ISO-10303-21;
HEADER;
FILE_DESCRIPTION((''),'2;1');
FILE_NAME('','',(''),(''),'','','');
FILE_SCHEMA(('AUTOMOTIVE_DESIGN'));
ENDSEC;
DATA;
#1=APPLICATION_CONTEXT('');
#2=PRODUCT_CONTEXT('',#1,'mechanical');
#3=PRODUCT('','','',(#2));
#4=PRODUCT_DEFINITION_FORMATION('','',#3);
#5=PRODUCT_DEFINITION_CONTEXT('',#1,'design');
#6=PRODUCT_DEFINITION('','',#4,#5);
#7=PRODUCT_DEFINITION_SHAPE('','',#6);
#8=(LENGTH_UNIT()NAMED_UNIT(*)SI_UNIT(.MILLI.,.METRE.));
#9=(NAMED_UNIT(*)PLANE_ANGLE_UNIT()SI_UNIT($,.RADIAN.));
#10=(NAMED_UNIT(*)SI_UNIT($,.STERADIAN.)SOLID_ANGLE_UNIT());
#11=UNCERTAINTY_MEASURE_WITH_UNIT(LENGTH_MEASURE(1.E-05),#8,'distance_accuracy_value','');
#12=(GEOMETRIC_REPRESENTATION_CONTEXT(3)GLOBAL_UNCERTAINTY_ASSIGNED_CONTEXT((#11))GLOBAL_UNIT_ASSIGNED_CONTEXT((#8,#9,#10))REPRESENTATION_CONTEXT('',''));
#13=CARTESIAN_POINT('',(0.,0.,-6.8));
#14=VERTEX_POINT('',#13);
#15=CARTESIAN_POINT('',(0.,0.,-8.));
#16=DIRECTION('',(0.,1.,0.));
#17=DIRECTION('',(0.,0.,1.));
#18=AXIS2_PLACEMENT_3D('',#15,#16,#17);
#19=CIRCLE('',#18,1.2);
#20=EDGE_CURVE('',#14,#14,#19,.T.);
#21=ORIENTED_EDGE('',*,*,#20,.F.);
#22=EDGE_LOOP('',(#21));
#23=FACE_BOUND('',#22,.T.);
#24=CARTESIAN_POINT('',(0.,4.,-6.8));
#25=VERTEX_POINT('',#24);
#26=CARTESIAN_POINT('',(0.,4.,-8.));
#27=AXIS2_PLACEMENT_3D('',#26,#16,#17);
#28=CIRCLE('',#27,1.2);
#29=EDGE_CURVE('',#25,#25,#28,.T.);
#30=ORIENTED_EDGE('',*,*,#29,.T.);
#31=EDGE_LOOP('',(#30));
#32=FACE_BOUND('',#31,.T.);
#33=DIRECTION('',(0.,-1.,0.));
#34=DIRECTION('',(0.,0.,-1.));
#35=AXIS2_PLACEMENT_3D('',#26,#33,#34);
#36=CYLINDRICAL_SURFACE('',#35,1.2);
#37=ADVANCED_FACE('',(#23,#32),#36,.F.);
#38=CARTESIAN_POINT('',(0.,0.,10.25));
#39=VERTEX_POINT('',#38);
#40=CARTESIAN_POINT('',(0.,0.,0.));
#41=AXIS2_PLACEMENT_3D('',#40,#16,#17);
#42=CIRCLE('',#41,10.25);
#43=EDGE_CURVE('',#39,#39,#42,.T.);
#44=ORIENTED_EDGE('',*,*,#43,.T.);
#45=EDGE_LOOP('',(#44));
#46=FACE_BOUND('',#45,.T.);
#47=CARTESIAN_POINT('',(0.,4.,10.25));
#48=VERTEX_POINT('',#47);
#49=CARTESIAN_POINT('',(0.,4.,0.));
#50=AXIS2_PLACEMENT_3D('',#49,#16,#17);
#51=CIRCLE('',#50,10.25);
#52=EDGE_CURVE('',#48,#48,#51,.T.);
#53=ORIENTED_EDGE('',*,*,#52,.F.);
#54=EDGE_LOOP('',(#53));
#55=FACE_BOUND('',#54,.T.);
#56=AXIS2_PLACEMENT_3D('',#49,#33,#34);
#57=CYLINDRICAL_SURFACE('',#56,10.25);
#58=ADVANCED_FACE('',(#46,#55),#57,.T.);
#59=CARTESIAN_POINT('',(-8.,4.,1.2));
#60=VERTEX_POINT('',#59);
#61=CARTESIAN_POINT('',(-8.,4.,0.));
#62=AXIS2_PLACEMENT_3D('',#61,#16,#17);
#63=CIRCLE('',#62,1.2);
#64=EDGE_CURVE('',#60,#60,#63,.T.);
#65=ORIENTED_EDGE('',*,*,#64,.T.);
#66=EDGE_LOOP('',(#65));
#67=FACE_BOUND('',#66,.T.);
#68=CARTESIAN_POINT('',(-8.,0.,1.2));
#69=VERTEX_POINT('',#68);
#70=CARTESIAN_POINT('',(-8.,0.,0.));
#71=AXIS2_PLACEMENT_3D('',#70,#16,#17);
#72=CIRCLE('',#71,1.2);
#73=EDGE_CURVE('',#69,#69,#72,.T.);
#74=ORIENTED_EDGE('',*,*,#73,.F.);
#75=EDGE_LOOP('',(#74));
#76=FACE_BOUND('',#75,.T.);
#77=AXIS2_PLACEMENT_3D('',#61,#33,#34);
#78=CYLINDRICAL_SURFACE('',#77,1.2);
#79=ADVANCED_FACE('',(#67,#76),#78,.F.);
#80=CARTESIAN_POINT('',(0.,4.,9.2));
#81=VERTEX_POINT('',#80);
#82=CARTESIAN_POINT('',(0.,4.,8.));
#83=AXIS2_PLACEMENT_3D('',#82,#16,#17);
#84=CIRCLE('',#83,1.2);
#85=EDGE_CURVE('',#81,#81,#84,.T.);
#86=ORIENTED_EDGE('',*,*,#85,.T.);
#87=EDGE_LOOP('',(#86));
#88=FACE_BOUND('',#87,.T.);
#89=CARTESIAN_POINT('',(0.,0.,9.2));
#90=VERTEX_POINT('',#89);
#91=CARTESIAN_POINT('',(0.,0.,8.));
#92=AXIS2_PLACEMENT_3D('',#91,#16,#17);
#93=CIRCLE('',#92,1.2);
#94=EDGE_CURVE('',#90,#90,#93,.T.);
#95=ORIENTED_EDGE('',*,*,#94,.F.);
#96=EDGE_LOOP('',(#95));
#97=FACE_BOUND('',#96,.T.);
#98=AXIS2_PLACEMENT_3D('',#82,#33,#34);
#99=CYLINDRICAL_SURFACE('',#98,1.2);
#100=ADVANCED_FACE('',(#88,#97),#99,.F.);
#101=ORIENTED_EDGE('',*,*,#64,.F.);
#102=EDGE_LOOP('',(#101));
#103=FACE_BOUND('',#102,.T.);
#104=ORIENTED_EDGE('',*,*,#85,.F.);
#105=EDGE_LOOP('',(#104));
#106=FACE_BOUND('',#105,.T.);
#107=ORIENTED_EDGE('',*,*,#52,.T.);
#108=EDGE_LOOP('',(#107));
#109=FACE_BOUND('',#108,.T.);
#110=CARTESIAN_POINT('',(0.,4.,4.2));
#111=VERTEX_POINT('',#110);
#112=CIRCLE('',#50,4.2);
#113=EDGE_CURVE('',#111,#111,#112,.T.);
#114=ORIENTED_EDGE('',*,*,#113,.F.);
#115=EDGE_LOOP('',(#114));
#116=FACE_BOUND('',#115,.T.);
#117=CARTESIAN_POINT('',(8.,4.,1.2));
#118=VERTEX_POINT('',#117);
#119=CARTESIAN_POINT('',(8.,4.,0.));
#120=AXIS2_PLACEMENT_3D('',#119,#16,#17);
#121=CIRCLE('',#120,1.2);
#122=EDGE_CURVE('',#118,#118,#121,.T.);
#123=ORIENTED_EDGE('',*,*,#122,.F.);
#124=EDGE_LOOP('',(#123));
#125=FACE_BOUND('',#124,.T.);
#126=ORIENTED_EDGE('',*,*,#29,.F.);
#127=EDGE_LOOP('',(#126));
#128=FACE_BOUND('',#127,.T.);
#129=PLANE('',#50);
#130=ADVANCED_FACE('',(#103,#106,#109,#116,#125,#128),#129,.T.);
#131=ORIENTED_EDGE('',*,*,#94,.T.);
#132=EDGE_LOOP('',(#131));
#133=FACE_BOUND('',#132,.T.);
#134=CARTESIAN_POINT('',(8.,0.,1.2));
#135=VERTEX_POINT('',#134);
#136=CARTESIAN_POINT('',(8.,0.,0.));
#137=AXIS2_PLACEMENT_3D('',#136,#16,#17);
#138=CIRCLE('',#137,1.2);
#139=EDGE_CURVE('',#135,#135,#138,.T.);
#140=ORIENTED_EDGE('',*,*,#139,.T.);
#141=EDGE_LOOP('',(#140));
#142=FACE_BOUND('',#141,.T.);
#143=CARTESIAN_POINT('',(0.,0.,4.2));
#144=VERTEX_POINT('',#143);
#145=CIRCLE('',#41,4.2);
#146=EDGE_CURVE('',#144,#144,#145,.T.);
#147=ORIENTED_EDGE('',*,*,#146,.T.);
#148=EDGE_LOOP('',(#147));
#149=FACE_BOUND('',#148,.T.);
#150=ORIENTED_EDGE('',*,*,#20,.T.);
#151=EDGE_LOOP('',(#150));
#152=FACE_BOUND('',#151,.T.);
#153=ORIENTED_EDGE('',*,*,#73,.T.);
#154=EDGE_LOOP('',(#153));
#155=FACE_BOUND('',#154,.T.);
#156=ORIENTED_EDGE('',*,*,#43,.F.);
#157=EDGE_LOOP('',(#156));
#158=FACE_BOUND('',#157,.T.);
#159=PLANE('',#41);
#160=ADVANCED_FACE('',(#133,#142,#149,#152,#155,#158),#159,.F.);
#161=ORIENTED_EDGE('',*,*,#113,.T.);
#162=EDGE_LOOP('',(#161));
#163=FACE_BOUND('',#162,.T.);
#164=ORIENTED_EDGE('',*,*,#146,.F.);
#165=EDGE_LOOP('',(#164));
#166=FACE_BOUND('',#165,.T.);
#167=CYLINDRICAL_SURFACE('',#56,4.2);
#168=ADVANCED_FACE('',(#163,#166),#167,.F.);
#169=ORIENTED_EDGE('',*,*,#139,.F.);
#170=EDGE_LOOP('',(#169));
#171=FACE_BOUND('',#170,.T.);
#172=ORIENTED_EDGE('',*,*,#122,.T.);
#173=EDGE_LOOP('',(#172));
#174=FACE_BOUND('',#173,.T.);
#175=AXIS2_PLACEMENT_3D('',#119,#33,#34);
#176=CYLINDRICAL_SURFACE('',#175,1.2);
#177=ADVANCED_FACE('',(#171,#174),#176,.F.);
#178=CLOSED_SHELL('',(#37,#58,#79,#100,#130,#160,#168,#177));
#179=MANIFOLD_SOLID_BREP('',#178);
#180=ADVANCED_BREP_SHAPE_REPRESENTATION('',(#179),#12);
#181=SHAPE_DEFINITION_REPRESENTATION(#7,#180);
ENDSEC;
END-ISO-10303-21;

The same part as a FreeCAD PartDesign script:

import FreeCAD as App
import Part
import Sketcher

doc = App.newDocument("Part")
body = doc.addObject("PartDesign::Body", "Body")

sketch1 = doc.addObject("Sketcher::SketchObject", "Sketch")
body.addObject(sketch1)
sketch1.AttachmentSupport = (doc.XZ_Plane, [""])
sketch1.MapMode = "FlatFace"
sketch1.addGeometry([
    Part.Circle(App.Vector(0, 0, 0), App.Vector(0, 0, 1), 10.2),
    Part.Circle(App.Vector(0, -8, 0), App.Vector(0, 0, 1), 1.2),
    Part.Circle(App.Vector(-8, 0, 0), App.Vector(0, 0, 1), 1.2),
    Part.Circle(App.Vector(0, 0, 0), App.Vector(0, 0, 1), 4.2),
    Part.Circle(App.Vector(0, 8, 0), App.Vector(0, 0, 1), 1.2),
    Part.Circle(App.Vector(8, 0, 0), App.Vector(0, 0, 1), 1.2),
], False)
sketch1.addConstraint([
    Sketcher.Constraint("Coincident", 0, 3, -1, 1),
    Sketcher.Constraint("Coincident", 3, 3, -1, 1),
    Sketcher.Constraint("Equal", 1, 2),
    Sketcher.Constraint("Equal", 2, 4),
    Sketcher.Constraint("Equal", 4, 5),
    Sketcher.Constraint("Symmetric", 1, 3, 4, 3, -1, 1),
    Sketcher.Constraint("Symmetric", 2, 3, 5, 3, -1, 1),
    Sketcher.Constraint("PointOnObject", 1, 3, -2),
    Sketcher.Constraint("PointOnObject", 2, 3, -1),
    Sketcher.Constraint("Diameter", 0, 20.5),
    Sketcher.Constraint("Diameter", 1, 2.4),
    Sketcher.Constraint("Diameter", 3, 8.4),
    Sketcher.Constraint("DistanceY", 1, 3, -1, 1, 8.0),
    Sketcher.Constraint("DistanceX", 2, 3, -1, 1, 8.0),
])
pad1 = doc.addObject("PartDesign::Pad", "Pad")
body.addObject(pad1)
pad1.Profile = sketch1
pad1.Length = 4
pad1.Reversed = True

doc.recompute()
